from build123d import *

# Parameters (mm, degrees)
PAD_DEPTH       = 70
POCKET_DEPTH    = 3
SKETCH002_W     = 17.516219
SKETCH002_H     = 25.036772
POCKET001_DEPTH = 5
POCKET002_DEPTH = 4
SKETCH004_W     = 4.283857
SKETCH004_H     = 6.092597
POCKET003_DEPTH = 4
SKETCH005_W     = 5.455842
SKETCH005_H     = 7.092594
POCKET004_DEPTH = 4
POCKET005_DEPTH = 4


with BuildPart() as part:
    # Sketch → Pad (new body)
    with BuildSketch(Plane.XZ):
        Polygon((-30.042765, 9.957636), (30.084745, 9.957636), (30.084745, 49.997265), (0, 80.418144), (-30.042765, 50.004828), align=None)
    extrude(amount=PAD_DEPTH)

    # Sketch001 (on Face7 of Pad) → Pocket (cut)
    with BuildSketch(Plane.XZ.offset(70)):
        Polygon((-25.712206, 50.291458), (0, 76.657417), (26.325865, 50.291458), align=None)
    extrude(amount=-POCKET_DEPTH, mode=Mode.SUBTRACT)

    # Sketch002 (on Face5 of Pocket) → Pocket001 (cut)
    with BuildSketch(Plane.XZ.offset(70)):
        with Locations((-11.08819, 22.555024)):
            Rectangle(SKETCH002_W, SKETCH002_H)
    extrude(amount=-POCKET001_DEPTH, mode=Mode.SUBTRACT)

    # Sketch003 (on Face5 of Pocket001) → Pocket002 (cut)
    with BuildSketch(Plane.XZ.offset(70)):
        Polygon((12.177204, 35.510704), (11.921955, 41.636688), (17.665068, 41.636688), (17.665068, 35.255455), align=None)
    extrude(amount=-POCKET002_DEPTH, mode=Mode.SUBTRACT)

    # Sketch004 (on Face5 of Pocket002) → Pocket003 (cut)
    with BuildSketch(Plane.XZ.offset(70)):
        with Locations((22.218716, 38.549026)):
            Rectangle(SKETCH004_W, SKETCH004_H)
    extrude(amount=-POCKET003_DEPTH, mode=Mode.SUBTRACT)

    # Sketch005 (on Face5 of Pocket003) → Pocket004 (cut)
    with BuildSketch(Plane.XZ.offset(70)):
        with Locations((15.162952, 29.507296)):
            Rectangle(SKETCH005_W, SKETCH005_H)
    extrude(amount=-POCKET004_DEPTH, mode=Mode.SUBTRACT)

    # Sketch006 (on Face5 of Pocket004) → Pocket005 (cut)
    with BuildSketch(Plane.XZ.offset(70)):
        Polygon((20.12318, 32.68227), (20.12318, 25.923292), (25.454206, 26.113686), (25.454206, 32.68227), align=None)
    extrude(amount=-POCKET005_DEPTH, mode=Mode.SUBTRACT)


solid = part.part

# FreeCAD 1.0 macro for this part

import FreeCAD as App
import Part
import Sketcher
Q = App.Units.Quantity

doc = App.newDocument("Part")
body = doc.addObject("PartDesign::Body", "Body")

# Sketch on XZ plane
sketch1 = body.newObject("Sketcher::SketchObject", "Sketch")
sketch1.AttachmentSupport = (doc.getObject("XZ_Plane"), [""])
sketch1.MapMode = "FlatFace"
sketch1.addGeometry(Part.LineSegment(App.Vector(-30, 10, 0), App.Vector(30, 10, 0)), False)
sketch1.addGeometry(Part.LineSegment(App.Vector(30, 10, 0), App.Vector(30, 50, 0)), False)
sketch1.addGeometry(Part.LineSegment(App.Vector(30, 50, 0), App.Vector(0, 80, 0)), False)
sketch1.addGeometry(Part.LineSegment(App.Vector(0, 80, 0), App.Vector(-30, 50, 0)), False)
sketch1.addGeometry(Part.LineSegment(App.Vector(-30, 50, 0), App.Vector(-30, 10, 0)), False)
sketch1.addConstraint(Sketcher.Constraint("Coincident", 0, 2, 1, 1))
sketch1.addConstraint(Sketcher.Constraint("Coincident", 1, 2, 2, 1))
sketch1.addConstraint(Sketcher.Constraint("Coincident", 2, 2, 3, 1))
sketch1.addConstraint(Sketcher.Constraint("Coincident", 3, 2, 4, 1))
sketch1.addConstraint(Sketcher.Constraint("Coincident", 4, 2, 0, 1))
sketch1.addConstraint(Sketcher.Constraint("Horizontal", 0))
sketch1.addConstraint(Sketcher.Constraint("Vertical", 1))
sketch1.addConstraint(Sketcher.Constraint("Vertical", 4))
sketch1.addConstraint(Sketcher.Constraint("PointOnObject", 2, 2, -2))
sketch1.addConstraint(Sketcher.Constraint("DistanceX", 0, 1, 0, 2, Q("60.12751 mm")))
sketch1.addConstraint(Sketcher.Constraint("DistanceY", 1, 1, 1, 2, Q("40.039629 mm")))
sketch1.addConstraint(Sketcher.Constraint("DistanceY", 4, 2, 4, 1, Q("40.047192 mm")))
sketch1.addConstraint(Sketcher.Constraint("DistanceY", -1, 1, 3, 2, Q("50.004828 mm")))
sketch1.addConstraint(Sketcher.Constraint("DistanceY", 1, 2, 2, 2, Q("30.420879 mm")))
sketch1.addConstraint(Sketcher.Constraint("Distance", 2, Q("42.784597 mm")))
pad1 = body.newObject("PartDesign::Pad", "Pad")
pad1.Profile = sketch1
pad1.Length = 70

# Sketch on XZ plane
sketch2 = body.newObject("Sketcher::SketchObject", "Sketch001")
sketch2.AttachmentSupport = (doc.getObject("XZ_Plane"), [""])
sketch2.MapMode = "FlatFace"
sketch2.AttachmentOffset = App.Placement(App.Vector(0, 0, 70), App.Rotation())
sketch2.addGeometry(Part.LineSegment(App.Vector(0, 77, 0), App.Vector(-26, 50, 0)), False)
sketch2.addGeometry(Part.LineSegment(App.Vector(-26, 50, 0), App.Vector(26, 50, 0)), False)
sketch2.addGeometry(Part.LineSegment(App.Vector(26, 50, 0), App.Vector(0, 77, 0)), False)
sketch2.addConstraint(Sketcher.Constraint("Coincident", 0, 2, 1, 1))
sketch2.addConstraint(Sketcher.Constraint("Coincident", 1, 2, 2, 1))
sketch2.addConstraint(Sketcher.Constraint("Coincident", 2, 2, 0, 1))
sketch2.addConstraint(Sketcher.Constraint("Horizontal", 1))
sketch2.addConstraint(Sketcher.Constraint("PointOnObject", 2, 2, -2))
sketch2.addConstraint(Sketcher.Constraint("DistanceX", 1, 1, 1, 2, Q("52.038071 mm")))
sketch2.addConstraint(Sketcher.Constraint("DistanceY", 0, 2, 2, 2, Q("26.365959 mm")))
sketch2.addConstraint(Sketcher.Constraint("Distance", 0, Q("36.827725 mm")))
sketch2.addConstraint(Sketcher.Constraint("DistanceY", -1, 1, 0, 2, Q("50.291458 mm")))
pocket1 = body.newObject("PartDesign::Pocket", "Pocket")
pocket1.Profile = sketch2
pocket1.Length = 3

# Sketch on XZ plane
sketch3 = body.newObject("Sketcher::SketchObject", "Sketch002")
sketch3.AttachmentSupport = (doc.getObject("XZ_Plane"), [""])
sketch3.MapMode = "FlatFace"
sketch3.AttachmentOffset = App.Placement(App.Vector(0, 0, 70), App.Rotation())
sketch3.addGeometry(Part.LineSegment(App.Vector(-20, 35, 0), App.Vector(-20, 10, 0)), False)
sketch3.addGeometry(Part.LineSegment(App.Vector(-20, 10, 0), App.Vector(-2, 10, 0)), False)
sketch3.addGeometry(Part.LineSegment(App.Vector(-2, 10, 0), App.Vector(-2, 35, 0)), False)
sketch3.addGeometry(Part.LineSegment(App.Vector(-2, 35, 0), App.Vector(-20, 35, 0)), False)
sketch3.addConstraint(Sketcher.Constraint("Coincident", 0, 2, 1, 1))
sketch3.addConstraint(Sketcher.Constraint("Coincident", 1, 2, 2, 1))
sketch3.addConstraint(Sketcher.Constraint("Coincident", 2, 2, 3, 1))
sketch3.addConstraint(Sketcher.Constraint("Coincident", 3, 2, 0, 1))
sketch3.addConstraint(Sketcher.Constraint("Vertical", 0))
sketch3.addConstraint(Sketcher.Constraint("Horizontal", 1))
sketch3.addConstraint(Sketcher.Constraint("Vertical", 2))
sketch3.addConstraint(Sketcher.Constraint("Horizontal", 3))
sketch3.addConstraint(Sketcher.Constraint("DistanceX", 1, 1, 1, 2, Q("17.516219 mm")))
sketch3.addConstraint(Sketcher.Constraint("DistanceX", 0, 2, -1, 1, Q("19.8463 mm")))
sketch3.addConstraint(Sketcher.Constraint("DistanceY", 0, 2, 0, 1, Q("25.036772 mm")))
sketch3.addConstraint(Sketcher.Constraint("DistanceY", -1, 1, 2, 2, Q("35.07341 mm")))
pocket2 = body.newObject("PartDesign::Pocket", "Pocket001")
pocket2.Profile = sketch3
pocket2.Length = 5

# Sketch on XZ plane
sketch4 = body.newObject("Sketcher::SketchObject", "Sketch003")
sketch4.AttachmentSupport = (doc.getObject("XZ_Plane"), [""])
sketch4.MapMode = "FlatFace"
sketch4.AttachmentOffset = App.Placement(App.Vector(0, 0, 70), App.Rotation())
sketch4.addGeometry(Part.LineSegment(App.Vector(12, 42, 0), App.Vector(12, 36, 0)), False)
sketch4.addGeometry(Part.LineSegment(App.Vector(12, 36, 0), App.Vector(18, 35, 0)), False)
sketch4.addGeometry(Part.LineSegment(App.Vector(18, 35, 0), App.Vector(18, 42, 0)), False)
sketch4.addGeometry(Part.LineSegment(App.Vector(18, 42, 0), App.Vector(12, 42, 0)), False)
sketch4.addConstraint(Sketcher.Constraint("Coincident", 0, 2, 1, 1))
sketch4.addConstraint(Sketcher.Constraint("Coincident", 1, 2, 2, 1))
sketch4.addConstraint(Sketcher.Constraint("Coincident", 2, 2, 3, 1))
sketch4.addConstraint(Sketcher.Constraint("Coincident", 3, 2, 0, 1))
sketch4.addConstraint(Sketcher.Constraint("Vertical", 2))
sketch4.addConstraint(Sketcher.Constraint("Horizontal", 3))
sketch4.addConstraint(Sketcher.Constraint("Distance", 0, Q("6.131299 mm")))
sketch4.addConstraint(Sketcher.Constraint("DistanceX", 3, 2, 3, 1, Q("5.743113 mm")))
sketch4.addConstraint(Sketcher.Constraint("DistanceY", 2, 1, 2, 2, Q("6.381233 mm")))
sketch4.addConstraint(Sketcher.Constraint("DistanceX", -1, 1, 1, 2, Q("17.665068 mm")))
sketch4.addConstraint(Sketcher.Constraint("DistanceY", 1, 2, 0, 2, Q("0.255249 mm")))
sketch4.addConstraint(Sketcher.Constraint("DistanceY", -1, 1, 0, 2, Q("35.510704 mm")))
pocket3 = body.newObject("PartDesign::Pocket", "Pocket002")
pocket3.Profile = sketch4
pocket3.Length = 4

# Sketch on XZ plane
sketch5 = body.newObject("Sketcher::SketchObject", "Sketch004")
sketch5.AttachmentSupport = (doc.getObject("XZ_Plane"), [""])
sketch5.MapMode = "FlatFace"
sketch5.AttachmentOffset = App.Placement(App.Vector(0, 0, 70), App.Rotation())
sketch5.addGeometry(Part.LineSegment(App.Vector(20.1, 41.6, 0), App.Vector(20.1, 35.5, 0)), False)
sketch5.addGeometry(Part.LineSegment(App.Vector(20.1, 35.5, 0), App.Vector(24.4, 35.5, 0)), False)
sketch5.addGeometry(Part.LineSegment(App.Vector(24.4, 35.5, 0), App.Vector(24.4, 41.6, 0)), False)
sketch5.addGeometry(Part.LineSegment(App.Vector(24.4, 41.6, 0), App.Vector(20.1, 41.6, 0)), False)
sketch5.addConstraint(Sketcher.Constraint("Coincident", 0, 2, 1, 1))
sketch5.addConstraint(Sketcher.Constraint("Coincident", 1, 2, 2, 1))
sketch5.addConstraint(Sketcher.Constraint("Coincident", 2, 2, 3, 1))
sketch5.addConstraint(Sketcher.Constraint("Coincident", 3, 2, 0, 1))
sketch5.addConstraint(Sketcher.Constraint("Vertical", 0))
sketch5.addConstraint(Sketcher.Constraint("Horizontal", 1))
sketch5.addConstraint(Sketcher.Constraint("Vertical", 2))
sketch5.addConstraint(Sketcher.Constraint("Horizontal", 3))
sketch5.addConstraint(Sketcher.Constraint("DistanceX", 1, 1, 1, 2, Q("4.283857 mm")))
sketch5.addConstraint(Sketcher.Constraint("DistanceY", 0, 2, 0, 1, Q("6.092597 mm")))
sketch5.addConstraint(Sketcher.Constraint("DistanceX", -1, 1, 0, 2, Q("20.076787 mm")))
sketch5.addConstraint(Sketcher.Constraint("DistanceY", -1, 1, 0, 2, Q("35.502727 mm")))
pocket4 = body.newObject("PartDesign::Pocket", "Pocket003")
pocket4.Profile = sketch5
pocket4.Length = 4

# Sketch on XZ plane
sketch6 = body.newObject("Sketcher::SketchObject", "Sketch005")
sketch6.AttachmentSupport = (doc.getObject("XZ_Plane"), [""])
sketch6.MapMode = "FlatFace"
sketch6.AttachmentOffset = App.Placement(App.Vector(0, 0, 70), App.Rotation())
sketch6.addGeometry(Part.LineSegment(App.Vector(12, 33, 0), App.Vector(12, 26, 0)), False)
sketch6.addGeometry(Part.LineSegment(App.Vector(12, 26, 0), App.Vector(18, 26, 0)), False)
sketch6.addGeometry(Part.LineSegment(App.Vector(18, 26, 0), App.Vector(18, 33, 0)), False)
sketch6.addGeometry(Part.LineSegment(App.Vector(18, 33, 0), App.Vector(12, 33, 0)), False)
sketch6.addConstraint(Sketcher.Constraint("Coincident", 0, 2, 1, 1))
sketch6.addConstraint(Sketcher.Constraint("Coincident", 1, 2, 2, 1))
sketch6.addConstraint(Sketcher.Constraint("Coincident", 2, 2, 3, 1))
sketch6.addConstraint(Sketcher.Constraint("Coincident", 3, 2, 0, 1))
sketch6.addConstraint(Sketcher.Constraint("Vertical", 0))
sketch6.addConstraint(Sketcher.Constraint("Horizontal", 1))
sketch6.addConstraint(Sketcher.Constraint("Vertical", 2))
sketch6.addConstraint(Sketcher.Constraint("Horizontal", 3))
sketch6.addConstraint(Sketcher.Constraint("DistanceY", -1, 1, 0, 2, Q("25.960999 mm")))
sketch6.addConstraint(Sketcher.Constraint("DistanceX", 1, 1, 1, 2, Q("5.455842 mm")))
sketch6.addConstraint(Sketcher.Constraint("DistanceY", 0, 2, 0, 1, Q("7.092594 mm")))
sketch6.addConstraint(Sketcher.Constraint("DistanceX", -1, 1, 0, 2, Q("12.435031 mm")))
pocket5 = body.newObject("PartDesign::Pocket", "Pocket004")
pocket5.Profile = sketch6
pocket5.Length = 4

# Sketch on XZ plane
sketch7 = body.newObject("Sketcher::SketchObject", "Sketch006")
sketch7.AttachmentSupport = (doc.getObject("XZ_Plane"), [""])
sketch7.MapMode = "FlatFace"
sketch7.AttachmentOffset = App.Placement(App.Vector(0, 0, 70), App.Rotation())
sketch7.addGeometry(Part.LineSegment(App.Vector(20, 33, 0), App.Vector(20, 26, 0)), False)
sketch7.addGeometry(Part.LineSegment(App.Vector(20, 26, 0), App.Vector(25, 26, 0)), False)
sketch7.addGeometry(Part.LineSegment(App.Vector(25, 26, 0), App.Vector(25, 33, 0)), False)
sketch7.addGeometry(Part.LineSegment(App.Vector(25, 33, 0), App.Vector(20, 33, 0)), False)
sketch7.addConstraint(Sketcher.Constraint("Coincident", 0, 2, 1, 1))
sketch7.addConstraint(Sketcher.Constraint("Coincident", 1, 2, 2, 1))
sketch7.addConstraint(Sketcher.Constraint("Coincident", 2, 2, 3, 1))
sketch7.addConstraint(Sketcher.Constraint("Coincident", 3, 2, 0, 1))
sketch7.addConstraint(Sketcher.Constraint("Vertical", 0))
sketch7.addConstraint(Sketcher.Constraint("Vertical", 2))
sketch7.addConstraint(Sketcher.Constraint("Horizontal", 3))
sketch7.addConstraint(Sketcher.Constraint("DistanceY", 0, 2, 0, 1, Q("6.758978 mm")))
sketch7.addConstraint(Sketcher.Constraint("DistanceX", 3, 2, 3, 1, Q("5.331026 mm")))
sketch7.addConstraint(Sketcher.Constraint("DistanceY", 2, 1, 2, 2, Q("6.568584 mm")))
sketch7.addConstraint(Sketcher.Constraint("DistanceX", -1, 1, 0, 2, Q("20.12318 mm")))
sketch7.addConstraint(Sketcher.Constraint("DistanceY", -1, 1, 0, 2, Q("25.923292 mm")))
pocket6 = body.newObject("PartDesign::Pocket", "Pocket005")
pocket6.Profile = sketch7
pocket6.Length = 4

doc.recompute()
